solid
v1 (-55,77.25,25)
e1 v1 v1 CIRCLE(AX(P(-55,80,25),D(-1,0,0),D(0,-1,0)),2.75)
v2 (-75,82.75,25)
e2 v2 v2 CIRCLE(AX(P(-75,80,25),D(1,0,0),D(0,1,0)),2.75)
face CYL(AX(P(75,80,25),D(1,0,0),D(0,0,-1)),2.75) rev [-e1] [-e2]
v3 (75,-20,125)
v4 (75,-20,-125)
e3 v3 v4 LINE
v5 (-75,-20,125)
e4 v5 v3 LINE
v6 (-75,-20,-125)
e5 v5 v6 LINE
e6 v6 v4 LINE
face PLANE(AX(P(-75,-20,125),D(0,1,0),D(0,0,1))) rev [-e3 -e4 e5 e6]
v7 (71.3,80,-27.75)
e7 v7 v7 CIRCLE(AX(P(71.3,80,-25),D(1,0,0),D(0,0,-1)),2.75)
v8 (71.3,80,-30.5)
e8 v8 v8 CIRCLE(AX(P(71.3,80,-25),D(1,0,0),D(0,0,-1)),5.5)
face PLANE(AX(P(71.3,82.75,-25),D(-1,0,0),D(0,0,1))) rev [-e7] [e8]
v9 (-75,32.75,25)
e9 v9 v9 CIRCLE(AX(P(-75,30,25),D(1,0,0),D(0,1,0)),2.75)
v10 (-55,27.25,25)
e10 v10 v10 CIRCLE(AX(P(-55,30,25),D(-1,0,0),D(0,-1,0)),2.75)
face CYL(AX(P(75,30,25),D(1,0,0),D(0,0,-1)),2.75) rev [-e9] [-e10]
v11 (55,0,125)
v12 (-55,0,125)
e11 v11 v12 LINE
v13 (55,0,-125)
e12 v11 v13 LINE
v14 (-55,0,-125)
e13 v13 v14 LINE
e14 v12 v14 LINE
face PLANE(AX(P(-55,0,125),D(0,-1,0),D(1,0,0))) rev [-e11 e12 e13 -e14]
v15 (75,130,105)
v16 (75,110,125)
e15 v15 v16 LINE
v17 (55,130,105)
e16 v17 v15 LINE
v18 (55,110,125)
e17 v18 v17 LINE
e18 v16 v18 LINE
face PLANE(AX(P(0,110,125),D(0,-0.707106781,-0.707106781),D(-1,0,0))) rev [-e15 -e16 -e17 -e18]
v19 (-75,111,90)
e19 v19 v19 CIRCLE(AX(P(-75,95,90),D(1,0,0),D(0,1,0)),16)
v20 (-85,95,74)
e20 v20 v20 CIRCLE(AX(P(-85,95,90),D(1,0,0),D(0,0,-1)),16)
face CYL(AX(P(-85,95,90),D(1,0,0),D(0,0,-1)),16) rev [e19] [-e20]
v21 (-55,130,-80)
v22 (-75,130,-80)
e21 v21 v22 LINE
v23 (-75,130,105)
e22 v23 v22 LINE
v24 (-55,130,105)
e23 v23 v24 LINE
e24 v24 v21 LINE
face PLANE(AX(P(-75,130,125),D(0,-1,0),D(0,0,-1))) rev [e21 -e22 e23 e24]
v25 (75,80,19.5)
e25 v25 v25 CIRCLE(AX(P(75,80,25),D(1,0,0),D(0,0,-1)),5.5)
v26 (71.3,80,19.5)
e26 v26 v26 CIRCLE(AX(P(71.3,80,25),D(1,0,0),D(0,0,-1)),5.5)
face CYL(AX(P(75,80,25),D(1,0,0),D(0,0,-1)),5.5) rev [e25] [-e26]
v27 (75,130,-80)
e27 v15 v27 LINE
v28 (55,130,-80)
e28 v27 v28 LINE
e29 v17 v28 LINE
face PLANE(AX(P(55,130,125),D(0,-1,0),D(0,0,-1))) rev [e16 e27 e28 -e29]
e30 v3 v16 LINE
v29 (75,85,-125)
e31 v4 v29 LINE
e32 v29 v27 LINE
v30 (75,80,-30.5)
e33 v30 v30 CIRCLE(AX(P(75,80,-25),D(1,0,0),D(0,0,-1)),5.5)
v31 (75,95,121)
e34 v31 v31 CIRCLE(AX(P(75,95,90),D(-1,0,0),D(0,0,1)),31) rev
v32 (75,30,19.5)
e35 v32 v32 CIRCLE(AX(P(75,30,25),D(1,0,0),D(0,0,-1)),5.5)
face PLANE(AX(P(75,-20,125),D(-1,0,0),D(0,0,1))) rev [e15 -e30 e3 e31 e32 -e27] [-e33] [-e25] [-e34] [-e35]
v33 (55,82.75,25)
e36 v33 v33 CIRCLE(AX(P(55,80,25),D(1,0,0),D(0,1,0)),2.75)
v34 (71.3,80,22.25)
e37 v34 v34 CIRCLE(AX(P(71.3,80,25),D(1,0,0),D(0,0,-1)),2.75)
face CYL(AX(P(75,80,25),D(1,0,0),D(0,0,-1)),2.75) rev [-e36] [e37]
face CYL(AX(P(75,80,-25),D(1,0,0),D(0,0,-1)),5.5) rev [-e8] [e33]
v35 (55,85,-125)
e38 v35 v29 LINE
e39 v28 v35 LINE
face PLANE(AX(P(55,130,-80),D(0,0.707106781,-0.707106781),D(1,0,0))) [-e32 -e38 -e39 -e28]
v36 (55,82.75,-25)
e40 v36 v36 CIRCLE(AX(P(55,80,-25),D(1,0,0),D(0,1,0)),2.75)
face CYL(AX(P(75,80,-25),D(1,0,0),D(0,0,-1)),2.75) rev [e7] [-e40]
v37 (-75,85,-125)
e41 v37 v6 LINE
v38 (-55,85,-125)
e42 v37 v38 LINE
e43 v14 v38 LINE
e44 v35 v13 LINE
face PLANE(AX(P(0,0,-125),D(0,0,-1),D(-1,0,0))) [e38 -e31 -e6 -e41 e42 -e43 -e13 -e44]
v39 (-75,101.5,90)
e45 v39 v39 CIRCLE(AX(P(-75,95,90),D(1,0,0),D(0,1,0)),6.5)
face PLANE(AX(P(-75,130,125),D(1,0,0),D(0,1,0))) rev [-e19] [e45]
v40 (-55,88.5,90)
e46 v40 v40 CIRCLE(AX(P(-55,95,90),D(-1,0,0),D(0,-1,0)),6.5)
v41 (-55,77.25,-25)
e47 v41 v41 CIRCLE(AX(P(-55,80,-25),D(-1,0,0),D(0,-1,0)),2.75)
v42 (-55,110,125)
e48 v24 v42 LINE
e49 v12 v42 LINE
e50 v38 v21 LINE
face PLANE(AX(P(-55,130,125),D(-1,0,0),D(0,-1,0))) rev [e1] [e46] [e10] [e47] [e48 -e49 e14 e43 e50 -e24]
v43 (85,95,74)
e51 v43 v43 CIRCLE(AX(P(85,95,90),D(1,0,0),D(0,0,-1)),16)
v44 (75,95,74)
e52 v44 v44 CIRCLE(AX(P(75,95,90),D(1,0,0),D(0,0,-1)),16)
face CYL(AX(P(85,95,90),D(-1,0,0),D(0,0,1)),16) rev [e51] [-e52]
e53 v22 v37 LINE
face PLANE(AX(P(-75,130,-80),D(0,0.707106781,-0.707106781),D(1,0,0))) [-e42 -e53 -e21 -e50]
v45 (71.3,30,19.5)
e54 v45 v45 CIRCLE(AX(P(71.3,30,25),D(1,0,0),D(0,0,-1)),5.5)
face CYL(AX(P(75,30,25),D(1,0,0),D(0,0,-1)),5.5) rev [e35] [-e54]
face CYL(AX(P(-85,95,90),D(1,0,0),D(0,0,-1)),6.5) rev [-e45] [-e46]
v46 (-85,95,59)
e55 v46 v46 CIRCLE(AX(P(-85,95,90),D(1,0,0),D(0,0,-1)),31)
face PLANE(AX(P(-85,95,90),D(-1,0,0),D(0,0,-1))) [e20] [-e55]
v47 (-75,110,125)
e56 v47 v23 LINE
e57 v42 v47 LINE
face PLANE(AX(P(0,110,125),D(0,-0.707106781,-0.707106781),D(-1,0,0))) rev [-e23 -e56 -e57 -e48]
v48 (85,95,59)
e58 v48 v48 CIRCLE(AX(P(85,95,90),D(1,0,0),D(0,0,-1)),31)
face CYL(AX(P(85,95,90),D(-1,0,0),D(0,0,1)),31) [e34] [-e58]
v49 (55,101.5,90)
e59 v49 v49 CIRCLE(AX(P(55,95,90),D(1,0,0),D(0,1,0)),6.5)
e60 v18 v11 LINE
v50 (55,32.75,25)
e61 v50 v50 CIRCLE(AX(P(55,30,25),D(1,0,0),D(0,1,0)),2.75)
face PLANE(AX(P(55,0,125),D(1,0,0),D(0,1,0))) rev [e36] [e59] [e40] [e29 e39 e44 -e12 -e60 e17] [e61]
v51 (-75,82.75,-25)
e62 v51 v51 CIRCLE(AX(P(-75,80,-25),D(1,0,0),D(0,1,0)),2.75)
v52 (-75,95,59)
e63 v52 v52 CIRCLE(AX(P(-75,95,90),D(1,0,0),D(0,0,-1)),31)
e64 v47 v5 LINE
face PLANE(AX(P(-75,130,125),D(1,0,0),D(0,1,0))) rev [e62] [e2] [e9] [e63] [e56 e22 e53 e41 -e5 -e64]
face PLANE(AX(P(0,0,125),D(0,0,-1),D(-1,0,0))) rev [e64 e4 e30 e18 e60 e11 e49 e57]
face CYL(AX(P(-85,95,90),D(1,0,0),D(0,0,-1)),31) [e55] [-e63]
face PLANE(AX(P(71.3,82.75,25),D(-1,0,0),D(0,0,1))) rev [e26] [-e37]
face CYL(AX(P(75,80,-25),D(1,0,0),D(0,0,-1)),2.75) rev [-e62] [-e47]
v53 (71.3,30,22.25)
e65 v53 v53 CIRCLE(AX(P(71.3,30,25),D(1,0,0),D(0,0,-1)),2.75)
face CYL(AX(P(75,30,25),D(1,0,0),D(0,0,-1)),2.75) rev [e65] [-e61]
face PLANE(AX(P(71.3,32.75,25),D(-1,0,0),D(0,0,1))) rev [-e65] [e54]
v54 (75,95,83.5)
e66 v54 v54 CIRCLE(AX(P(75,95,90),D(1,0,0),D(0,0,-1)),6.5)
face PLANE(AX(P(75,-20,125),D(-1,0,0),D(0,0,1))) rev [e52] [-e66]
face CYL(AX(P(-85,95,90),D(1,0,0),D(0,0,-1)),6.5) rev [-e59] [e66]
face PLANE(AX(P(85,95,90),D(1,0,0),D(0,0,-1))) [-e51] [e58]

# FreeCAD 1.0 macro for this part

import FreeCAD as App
import Part
import Sketcher
from FreeCAD import Vector
Q = App.Units.Quantity


def edges_at(feature, points):
    """Names of the edges that pass closest to the given points."""
    edges = feature.Shape.Edges
    near = lambda p: min(range(len(edges)), key=lambda i: edges[i].distToShape(Part.Vertex(*p))[0])
    return sorted({f"Edge{near(p) + 1}" for p in points})


def add_polygon(sketch, points):
    """Adds a closed chain of lines whose ends are joined by coincident constraints."""
    first, n = sketch.GeometryCount, len(points)
    for a, b in zip(points, points[1:] + points[:1]):
        sketch.addGeometry(Part.LineSegment(App.Vector(*a, 0), App.Vector(*b, 0)), False)
    for i in range(n):
        sketch.addConstraint(Sketcher.Constraint("Coincident", first + i, 2, first + (i + 1) % n, 1))

doc = App.newDocument("Part")
body = doc.addObject("PartDesign::Body", "Body")

# Sketch on XY plane
sketch1 = body.newObject("Sketcher::SketchObject", "Sketch")
sketch1.AttachmentSupport = (doc.getObject("XY_Plane"), [""])
sketch1.MapMode = "FlatFace"
add_polygon(sketch1, [(-55, 0), (-55, 130), (-75, 130), (-75, -20), (75, -20), (75, 130), (55, 130), (55, 0)])  # lines 0-7
sketch1.addConstraint([
    Sketcher.Constraint("Vertical", 0),
    Sketcher.Constraint("Horizontal", 1),
    Sketcher.Constraint("Vertical", 2),
    Sketcher.Constraint("Horizontal", 3),
    Sketcher.Constraint("Vertical", 4),
    Sketcher.Constraint("Horizontal", 5),
    Sketcher.Constraint("Vertical", 6),
    Sketcher.Constraint("Horizontal", 7),
    Sketcher.Constraint("Symmetric", 6, 2, 7, 2, -1, 1),
    Sketcher.Constraint("Symmetric", 1, 2, 4, 2, -2),
    Sketcher.Constraint("Equal", 3, 2),
    Sketcher.Constraint("DistanceX", 1, 2, 1, 1, Q("20 mm")),
    Sketcher.Constraint("DistanceX", 3, 1, 3, 2, Q("150 mm")),
    Sketcher.Constraint("DistanceY", 0, 1, 0, 2, Q("130 mm")),
])
pad1 = body.newObject("PartDesign::Pad", "Pad")
pad1.Profile = sketch1
pad1.Length = 250
pad1.Midplane = True

# Sketch on YZ plane
sketch2 = body.newObject("Sketcher::SketchObject", "Sketch001")
sketch2.AttachmentSupport = (doc.getObject("YZ_Plane"), [""])
sketch2.MapMode = "FlatFace"
sketch2.AttachmentOffset = App.Placement(Vector(0, 0, 75), App.Rotation())
sketch2.addGeometry([
    Part.Circle(Vector(95, 90, 0), Vector(0, 0, 1), 31),
    Part.Circle(Vector(95, 90, 0), Vector(0, 0, 1), 16),
], False)
sketch2.addConstraint([
    Sketcher.Constraint("Coincident", 1, 3, 0, 3),
    Sketcher.Constraint("Diameter", 0, Q("62 mm")),
    Sketcher.Constraint("Diameter", 1, Q("32 mm")),
    Sketcher.Constraint("DistanceX", -1, 1, 0, 3, Q("95 mm")),
    Sketcher.Constraint("DistanceY", -1, 1, 0, 3, Q("90 mm")),
])
pad2 = body.newObject("PartDesign::Pad", "Pad001")
pad2.Profile = sketch2
pad2.Length = 10
doc.recompute()

mirrored = body.newObject("PartDesign::Mirrored", "Mirrored")
mirrored.Originals = [pad2]
mirrored.MirrorPlane = (doc.getObject("YZ_Plane"), [""])
body.Tip = mirrored

# Sketch on YZ plane
sketch3 = body.newObject("Sketcher::SketchObject", "Sketch002")
sketch3.AttachmentSupport = (doc.getObject("YZ_Plane"), [""])
sketch3.MapMode = "FlatFace"
sketch3.AttachmentOffset = App.Placement(Vector(0, 0, 75), App.Rotation())
sketch3.addGeometry(Part.Circle(Vector(95, 90, 0), Vector(0, 0, 1), 6), False)
sketch3.addConstraint([
    Sketcher.Constraint("Diameter", 0, Q("13 mm")),
    Sketcher.Constraint("DistanceX", -1, 1, 0, 3, Q("95 mm")),
    Sketcher.Constraint("DistanceY", -1, 1, 0, 3, Q("90 mm")),
])
pocket1 = body.newObject("PartDesign::Pocket", "Pocket")
pocket1.Profile = sketch3
pocket1.Type = "ThroughAll"
doc.recompute()

chamfer = body.newObject("PartDesign::Chamfer", "Chamfer")
chamfer.Base = (pocket1, edges_at(pocket1, [(65, 130, 125), (-65, 130, 125)]))
chamfer.Size = 20
doc.recompute()

chamfer2 = body.newObject("PartDesign::Chamfer", "Chamfer001")
chamfer2.Base = (chamfer, edges_at(chamfer, [(-65, 130, -125), (65, 130, -125)]))
chamfer2.Size = 45

# Sketch on YZ plane
sketch4 = body.newObject("Sketcher::SketchObject", "Sketch003")
sketch4.AttachmentSupport = (doc.getObject("YZ_Plane"), [""])
sketch4.MapMode = "FlatFace"
sketch4.AttachmentOffset = App.Placement(Vector(0, 0, 75), App.Rotation())
sketch4.addGeometry([
    Part.Circle(Vector(80, 25, 0), Vector(0, 0, 1), 2.8),
    Part.Circle(Vector(80, -25, 0), Vector(0, 0, 1), 2.8),
    Part.Circle(Vector(30, 25, 0), Vector(0, 0, 1), 2.8),
], False)
sketch4.addConstraint([
    Sketcher.Constraint("Equal", 0, 1),
    Sketcher.Constraint("Equal", 1, 2),
    Sketcher.Constraint("Symmetric", 0, 3, 1, 3, -1),
    Sketcher.Constraint("Horizontal", 0, 3, 2, 3),
    Sketcher.Constraint("Diameter", 0, Q("5.5 mm")),
    Sketcher.Constraint("DistanceX", -1, 1, 0, 3, Q("80 mm")),
    Sketcher.Constraint("DistanceY", -1, 1, 0, 3, Q("25 mm")),
    Sketcher.Constraint("DistanceX", -1, 1, 2, 3, Q("30 mm")),
])
doc.recompute()
hole = body.newObject("PartDesign::Hole", "Hole")
hole.Profile = sketch4
hole.ThreadType = "None"
hole.Diameter = 5.5
hole.DepthType = "ThroughAll"
hole.HoleCutType = "Counterbore"
hole.HoleCutDiameter = 11
hole.HoleCutDepth = 3.7

doc.recompute()
